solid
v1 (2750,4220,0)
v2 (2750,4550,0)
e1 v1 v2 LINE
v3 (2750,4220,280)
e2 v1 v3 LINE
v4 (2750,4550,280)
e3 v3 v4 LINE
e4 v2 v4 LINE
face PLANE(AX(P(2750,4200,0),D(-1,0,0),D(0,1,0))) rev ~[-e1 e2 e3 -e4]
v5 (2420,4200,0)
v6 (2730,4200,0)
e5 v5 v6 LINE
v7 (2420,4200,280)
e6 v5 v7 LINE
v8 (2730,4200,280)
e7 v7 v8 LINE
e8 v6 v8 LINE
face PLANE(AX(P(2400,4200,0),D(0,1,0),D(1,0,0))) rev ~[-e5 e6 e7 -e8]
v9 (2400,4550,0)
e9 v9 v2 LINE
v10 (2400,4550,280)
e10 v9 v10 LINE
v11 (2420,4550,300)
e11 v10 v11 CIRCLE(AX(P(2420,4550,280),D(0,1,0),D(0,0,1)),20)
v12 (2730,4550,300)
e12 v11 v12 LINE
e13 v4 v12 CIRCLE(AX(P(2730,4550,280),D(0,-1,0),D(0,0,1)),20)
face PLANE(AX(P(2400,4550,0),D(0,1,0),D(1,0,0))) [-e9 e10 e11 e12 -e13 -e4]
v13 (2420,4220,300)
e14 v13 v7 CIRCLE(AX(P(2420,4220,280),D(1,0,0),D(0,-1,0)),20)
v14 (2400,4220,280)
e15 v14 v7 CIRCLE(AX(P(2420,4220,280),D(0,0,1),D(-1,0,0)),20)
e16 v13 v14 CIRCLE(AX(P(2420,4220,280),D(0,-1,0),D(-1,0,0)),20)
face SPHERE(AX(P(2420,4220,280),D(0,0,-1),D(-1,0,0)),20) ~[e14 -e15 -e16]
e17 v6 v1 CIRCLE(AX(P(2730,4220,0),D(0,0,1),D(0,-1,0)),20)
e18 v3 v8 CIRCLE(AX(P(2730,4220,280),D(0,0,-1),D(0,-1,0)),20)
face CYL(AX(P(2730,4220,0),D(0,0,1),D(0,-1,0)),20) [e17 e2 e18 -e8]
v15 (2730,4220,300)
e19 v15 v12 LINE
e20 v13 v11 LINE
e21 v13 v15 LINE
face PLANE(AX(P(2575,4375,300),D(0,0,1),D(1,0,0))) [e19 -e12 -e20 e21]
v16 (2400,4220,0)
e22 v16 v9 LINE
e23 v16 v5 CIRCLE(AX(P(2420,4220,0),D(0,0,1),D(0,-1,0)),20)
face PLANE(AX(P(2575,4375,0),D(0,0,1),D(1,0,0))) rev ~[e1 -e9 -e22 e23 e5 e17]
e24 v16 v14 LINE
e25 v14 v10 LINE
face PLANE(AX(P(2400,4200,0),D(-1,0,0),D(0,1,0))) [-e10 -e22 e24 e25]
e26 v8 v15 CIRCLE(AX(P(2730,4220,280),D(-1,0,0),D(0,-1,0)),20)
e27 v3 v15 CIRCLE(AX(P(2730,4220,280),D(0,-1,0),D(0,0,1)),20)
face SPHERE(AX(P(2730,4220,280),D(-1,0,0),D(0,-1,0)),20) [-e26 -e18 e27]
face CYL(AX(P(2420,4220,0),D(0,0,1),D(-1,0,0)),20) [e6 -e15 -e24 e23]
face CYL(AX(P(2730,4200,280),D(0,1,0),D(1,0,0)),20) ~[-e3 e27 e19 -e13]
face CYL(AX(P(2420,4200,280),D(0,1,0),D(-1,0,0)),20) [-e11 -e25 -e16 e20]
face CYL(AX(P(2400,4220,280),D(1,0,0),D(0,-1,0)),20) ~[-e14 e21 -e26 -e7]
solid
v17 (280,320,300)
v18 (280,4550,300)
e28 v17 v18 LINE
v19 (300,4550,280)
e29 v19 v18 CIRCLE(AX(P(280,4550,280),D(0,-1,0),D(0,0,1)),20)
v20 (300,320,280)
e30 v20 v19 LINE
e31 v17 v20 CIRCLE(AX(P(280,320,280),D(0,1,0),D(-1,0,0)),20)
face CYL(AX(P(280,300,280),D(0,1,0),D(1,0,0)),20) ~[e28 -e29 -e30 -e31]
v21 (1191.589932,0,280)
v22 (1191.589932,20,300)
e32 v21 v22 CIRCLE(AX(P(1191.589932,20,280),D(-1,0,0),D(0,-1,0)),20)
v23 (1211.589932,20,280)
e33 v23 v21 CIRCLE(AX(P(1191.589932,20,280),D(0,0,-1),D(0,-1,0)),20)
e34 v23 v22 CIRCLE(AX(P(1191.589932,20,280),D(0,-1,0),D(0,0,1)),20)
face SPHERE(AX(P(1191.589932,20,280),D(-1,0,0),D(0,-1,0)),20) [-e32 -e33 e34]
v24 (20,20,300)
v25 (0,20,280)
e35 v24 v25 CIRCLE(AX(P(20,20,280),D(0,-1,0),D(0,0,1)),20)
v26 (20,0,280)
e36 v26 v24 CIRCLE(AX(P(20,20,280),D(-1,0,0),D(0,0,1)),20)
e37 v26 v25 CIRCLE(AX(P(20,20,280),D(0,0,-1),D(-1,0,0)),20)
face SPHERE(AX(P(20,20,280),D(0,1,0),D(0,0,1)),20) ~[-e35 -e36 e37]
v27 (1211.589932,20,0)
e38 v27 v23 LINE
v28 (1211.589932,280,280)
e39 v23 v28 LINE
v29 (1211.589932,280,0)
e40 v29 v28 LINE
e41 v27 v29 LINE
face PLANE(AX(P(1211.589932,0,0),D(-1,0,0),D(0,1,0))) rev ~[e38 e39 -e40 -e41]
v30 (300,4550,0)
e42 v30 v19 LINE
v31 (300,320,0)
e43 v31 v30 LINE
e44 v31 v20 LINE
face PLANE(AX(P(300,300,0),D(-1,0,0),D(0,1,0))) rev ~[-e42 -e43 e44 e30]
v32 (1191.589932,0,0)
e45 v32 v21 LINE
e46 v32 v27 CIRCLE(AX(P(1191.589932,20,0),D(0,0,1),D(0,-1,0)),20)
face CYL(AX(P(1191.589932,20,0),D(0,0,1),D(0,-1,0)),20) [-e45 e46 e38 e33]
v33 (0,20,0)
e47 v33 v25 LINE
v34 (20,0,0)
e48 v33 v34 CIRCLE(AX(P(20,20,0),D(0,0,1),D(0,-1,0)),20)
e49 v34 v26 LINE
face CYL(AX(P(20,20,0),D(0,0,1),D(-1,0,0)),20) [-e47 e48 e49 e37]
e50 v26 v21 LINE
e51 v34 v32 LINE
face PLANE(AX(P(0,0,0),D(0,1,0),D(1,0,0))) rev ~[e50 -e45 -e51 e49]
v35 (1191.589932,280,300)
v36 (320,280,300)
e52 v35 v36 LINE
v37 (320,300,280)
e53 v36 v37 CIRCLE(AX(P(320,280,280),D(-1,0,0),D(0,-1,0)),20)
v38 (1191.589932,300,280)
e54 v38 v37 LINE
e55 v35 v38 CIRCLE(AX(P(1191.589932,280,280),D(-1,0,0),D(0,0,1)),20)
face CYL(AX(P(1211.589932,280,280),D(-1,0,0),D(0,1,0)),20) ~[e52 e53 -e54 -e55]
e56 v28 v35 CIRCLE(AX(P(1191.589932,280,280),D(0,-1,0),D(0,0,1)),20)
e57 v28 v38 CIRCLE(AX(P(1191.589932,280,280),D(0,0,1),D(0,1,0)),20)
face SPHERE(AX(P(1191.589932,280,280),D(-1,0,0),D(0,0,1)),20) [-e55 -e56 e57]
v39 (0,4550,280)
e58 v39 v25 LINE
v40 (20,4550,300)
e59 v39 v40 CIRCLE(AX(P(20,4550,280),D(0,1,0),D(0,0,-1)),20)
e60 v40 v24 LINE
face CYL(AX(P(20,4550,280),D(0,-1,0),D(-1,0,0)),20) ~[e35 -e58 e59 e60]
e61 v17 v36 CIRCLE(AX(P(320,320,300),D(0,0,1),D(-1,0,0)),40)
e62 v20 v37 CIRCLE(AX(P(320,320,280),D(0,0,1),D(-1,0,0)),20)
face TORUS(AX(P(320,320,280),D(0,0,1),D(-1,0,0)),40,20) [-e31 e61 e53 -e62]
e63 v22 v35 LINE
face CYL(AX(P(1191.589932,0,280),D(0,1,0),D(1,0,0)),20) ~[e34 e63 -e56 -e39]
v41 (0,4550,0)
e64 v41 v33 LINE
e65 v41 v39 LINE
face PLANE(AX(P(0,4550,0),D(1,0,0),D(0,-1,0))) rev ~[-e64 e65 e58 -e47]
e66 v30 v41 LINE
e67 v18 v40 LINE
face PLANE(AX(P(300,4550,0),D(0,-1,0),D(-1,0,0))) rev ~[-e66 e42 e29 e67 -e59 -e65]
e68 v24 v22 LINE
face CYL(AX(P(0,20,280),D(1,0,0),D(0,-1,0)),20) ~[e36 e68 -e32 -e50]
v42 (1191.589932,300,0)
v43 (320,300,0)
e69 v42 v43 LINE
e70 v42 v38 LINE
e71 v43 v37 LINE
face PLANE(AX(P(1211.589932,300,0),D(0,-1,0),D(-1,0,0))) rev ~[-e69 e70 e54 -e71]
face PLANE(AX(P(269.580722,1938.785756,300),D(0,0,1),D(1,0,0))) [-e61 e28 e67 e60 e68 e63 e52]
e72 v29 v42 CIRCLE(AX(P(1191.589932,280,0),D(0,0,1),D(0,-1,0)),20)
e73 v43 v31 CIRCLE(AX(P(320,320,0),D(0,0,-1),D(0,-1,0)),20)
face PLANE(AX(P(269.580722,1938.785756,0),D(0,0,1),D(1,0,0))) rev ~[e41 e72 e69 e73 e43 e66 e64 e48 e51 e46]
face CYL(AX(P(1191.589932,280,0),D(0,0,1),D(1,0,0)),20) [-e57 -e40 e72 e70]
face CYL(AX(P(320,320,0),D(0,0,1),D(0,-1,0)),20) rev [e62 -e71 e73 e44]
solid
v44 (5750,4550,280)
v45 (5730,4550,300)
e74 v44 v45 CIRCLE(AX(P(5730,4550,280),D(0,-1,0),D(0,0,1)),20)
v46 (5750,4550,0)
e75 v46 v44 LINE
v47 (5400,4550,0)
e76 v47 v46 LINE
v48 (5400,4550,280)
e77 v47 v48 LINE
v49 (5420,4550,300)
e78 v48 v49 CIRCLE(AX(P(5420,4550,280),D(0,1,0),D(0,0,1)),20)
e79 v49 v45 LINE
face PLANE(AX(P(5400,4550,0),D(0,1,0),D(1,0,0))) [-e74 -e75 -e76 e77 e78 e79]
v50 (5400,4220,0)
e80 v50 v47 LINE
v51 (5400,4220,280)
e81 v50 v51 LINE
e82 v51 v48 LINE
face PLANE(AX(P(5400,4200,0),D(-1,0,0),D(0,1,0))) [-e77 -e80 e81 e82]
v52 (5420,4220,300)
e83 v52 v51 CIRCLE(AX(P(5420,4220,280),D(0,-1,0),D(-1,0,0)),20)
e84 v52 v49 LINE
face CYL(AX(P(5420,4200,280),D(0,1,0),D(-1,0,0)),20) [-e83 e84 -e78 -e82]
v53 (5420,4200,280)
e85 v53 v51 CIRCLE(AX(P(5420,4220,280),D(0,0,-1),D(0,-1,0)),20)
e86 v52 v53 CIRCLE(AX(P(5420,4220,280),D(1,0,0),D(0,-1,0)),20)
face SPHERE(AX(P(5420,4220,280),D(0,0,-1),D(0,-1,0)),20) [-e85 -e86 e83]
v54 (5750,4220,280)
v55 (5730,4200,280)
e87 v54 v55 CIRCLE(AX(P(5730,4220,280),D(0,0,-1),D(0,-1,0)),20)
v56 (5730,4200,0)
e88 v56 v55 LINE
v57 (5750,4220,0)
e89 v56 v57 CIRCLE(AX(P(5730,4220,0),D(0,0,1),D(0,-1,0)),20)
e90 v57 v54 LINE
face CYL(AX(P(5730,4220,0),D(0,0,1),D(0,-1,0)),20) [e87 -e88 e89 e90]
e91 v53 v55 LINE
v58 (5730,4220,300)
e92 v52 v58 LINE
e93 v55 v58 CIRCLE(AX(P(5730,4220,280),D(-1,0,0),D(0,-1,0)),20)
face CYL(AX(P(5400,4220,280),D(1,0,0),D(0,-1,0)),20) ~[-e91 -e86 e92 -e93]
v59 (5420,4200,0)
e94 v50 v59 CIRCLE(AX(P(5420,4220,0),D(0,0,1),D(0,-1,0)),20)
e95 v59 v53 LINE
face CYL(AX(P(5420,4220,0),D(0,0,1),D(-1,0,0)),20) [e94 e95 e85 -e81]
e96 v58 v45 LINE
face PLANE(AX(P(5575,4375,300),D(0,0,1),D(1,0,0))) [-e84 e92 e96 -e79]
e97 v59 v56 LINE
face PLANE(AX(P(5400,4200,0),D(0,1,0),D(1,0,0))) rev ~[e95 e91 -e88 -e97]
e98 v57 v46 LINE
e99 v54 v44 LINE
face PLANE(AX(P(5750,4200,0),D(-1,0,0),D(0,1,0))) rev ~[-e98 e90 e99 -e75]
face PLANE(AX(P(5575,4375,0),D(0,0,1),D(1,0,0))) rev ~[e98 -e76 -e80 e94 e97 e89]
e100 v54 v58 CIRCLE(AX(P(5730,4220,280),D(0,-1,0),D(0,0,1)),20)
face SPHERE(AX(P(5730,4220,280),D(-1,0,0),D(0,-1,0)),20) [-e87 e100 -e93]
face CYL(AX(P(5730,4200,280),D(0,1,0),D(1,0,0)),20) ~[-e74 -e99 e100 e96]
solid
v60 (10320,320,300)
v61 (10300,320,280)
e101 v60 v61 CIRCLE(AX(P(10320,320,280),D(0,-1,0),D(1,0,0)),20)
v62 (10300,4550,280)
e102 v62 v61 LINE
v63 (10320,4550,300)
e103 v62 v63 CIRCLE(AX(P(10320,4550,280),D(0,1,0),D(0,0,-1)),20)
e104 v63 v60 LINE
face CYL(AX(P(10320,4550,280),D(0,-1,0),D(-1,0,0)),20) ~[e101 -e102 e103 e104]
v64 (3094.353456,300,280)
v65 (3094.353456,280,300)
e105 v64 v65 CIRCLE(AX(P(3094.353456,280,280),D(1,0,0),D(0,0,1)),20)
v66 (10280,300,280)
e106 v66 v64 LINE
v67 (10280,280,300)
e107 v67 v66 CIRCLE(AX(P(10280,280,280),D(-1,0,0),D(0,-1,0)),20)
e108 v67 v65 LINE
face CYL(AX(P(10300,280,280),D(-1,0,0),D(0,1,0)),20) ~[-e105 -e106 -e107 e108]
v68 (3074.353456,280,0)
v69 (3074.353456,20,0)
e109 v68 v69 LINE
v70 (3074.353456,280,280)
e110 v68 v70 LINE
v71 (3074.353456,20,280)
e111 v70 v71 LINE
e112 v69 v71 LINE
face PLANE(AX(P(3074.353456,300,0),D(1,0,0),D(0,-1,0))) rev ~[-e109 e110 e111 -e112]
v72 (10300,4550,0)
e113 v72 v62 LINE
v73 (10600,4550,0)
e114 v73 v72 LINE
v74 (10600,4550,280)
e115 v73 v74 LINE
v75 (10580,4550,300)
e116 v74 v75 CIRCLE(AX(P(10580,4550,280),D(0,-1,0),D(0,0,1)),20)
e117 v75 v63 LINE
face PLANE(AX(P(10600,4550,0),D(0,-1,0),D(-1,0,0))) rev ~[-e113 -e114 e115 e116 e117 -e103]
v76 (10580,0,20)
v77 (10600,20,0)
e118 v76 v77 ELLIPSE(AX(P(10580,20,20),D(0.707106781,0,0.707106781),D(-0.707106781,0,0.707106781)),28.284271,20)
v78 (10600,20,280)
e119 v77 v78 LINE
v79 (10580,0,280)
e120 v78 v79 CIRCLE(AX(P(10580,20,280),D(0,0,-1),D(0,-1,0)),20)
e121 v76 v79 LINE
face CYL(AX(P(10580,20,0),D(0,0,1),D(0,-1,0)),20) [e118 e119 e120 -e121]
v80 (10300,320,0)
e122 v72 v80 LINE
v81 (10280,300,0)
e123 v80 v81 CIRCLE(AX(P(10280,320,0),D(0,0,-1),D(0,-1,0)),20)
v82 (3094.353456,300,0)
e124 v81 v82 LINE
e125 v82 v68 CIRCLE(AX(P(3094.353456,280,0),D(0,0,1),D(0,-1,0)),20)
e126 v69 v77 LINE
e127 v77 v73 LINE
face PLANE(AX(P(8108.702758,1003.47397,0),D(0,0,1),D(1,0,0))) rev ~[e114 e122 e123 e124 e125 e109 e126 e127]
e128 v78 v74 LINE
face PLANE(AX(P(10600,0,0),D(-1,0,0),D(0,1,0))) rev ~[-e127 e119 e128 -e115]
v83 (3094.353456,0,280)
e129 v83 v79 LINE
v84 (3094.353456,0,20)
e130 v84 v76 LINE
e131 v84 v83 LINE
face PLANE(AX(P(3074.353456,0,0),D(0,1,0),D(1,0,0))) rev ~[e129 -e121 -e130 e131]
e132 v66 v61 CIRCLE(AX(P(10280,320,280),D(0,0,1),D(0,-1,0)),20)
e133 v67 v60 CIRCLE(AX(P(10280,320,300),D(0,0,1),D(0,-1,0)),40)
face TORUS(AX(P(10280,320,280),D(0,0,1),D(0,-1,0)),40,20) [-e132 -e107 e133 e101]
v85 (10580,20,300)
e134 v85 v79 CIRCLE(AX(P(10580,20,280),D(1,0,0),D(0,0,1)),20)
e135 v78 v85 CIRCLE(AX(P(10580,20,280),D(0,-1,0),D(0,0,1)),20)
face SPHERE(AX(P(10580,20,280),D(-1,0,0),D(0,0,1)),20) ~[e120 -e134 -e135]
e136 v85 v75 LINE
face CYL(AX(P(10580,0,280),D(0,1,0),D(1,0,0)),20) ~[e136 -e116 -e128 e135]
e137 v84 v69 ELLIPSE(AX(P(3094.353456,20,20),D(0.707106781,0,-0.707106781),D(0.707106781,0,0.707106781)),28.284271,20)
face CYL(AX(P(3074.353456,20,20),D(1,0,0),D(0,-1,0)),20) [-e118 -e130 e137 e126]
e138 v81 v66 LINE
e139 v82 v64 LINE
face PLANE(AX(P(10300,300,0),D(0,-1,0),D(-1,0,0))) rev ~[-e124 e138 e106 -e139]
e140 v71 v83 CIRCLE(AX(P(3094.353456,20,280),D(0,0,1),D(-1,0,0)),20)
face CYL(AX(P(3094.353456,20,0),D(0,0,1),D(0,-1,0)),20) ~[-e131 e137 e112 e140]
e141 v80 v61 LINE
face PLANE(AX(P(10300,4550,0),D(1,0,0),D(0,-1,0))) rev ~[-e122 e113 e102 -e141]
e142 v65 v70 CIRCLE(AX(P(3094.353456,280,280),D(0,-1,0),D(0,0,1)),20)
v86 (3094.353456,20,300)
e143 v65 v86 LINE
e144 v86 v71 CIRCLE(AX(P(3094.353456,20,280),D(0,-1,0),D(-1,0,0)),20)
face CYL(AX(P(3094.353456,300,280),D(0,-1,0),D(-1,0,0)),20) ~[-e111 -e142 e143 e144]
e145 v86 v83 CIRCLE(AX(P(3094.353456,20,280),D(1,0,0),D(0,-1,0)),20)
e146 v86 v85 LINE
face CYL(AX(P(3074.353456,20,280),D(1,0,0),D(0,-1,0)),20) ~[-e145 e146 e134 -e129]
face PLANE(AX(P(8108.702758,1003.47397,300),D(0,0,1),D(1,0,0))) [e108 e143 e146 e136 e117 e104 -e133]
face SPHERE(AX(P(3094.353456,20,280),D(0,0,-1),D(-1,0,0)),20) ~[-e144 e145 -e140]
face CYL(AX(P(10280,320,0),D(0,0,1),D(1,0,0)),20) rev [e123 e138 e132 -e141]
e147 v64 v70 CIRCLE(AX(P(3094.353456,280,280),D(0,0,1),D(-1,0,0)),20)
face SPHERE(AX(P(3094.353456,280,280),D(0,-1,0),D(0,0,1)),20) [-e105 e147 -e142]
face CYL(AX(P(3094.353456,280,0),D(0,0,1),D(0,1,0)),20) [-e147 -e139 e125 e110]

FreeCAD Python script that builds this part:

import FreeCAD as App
import Part
import Sketcher

V = App.Vector
Q = App.Units.Quantity


def edges_at(feature, points):
    """Names of the edges that pass closest to the given points."""
    edges = feature.Shape.Edges
    near = lambda p: min(range(len(edges)), key=lambda i: edges[i].distToShape(Part.Vertex(*p))[0])
    return sorted({f"Edge{near(p) + 1}" for p in points})

doc = App.newDocument("Part")
body = doc.addObject("PartDesign::Body", "Body")
body.AllowCompound = True

sketch1 = doc.addObject("Sketcher::SketchObject", "Sketch")
body.addObject(sketch1)
sketch1.AttachmentSupport = (doc.XY_Plane, [""])
sketch1.MapMode = "FlatFace"
sketch1.addGeometry([
    Part.LineSegment(V(0, 4550, 0), V(0, 0, 0)),
    Part.LineSegment(V(0, 0, 0), V(1212, 0, 0)),
    Part.LineSegment(V(1212, 0, 0), V(1212, 300, 0)),
    Part.LineSegment(V(1212, 300, 0), V(300, 300, 0)),
    Part.LineSegment(V(300, 300, 0), V(300, 4550, 0)),
    Part.LineSegment(V(300, 4550, 0), V(0, 4550, 0)),
    Part.LineSegment(V(3074, 0, 0), V(10600, 0, 0)),
    Part.LineSegment(V(10600, 0, 0), V(10600, 4550, 0)),
    Part.LineSegment(V(10600, 4550, 0), V(10300, 4550, 0)),
    Part.LineSegment(V(10300, 4550, 0), V(10300, 300, 0)),
    Part.LineSegment(V(10300, 300, 0), V(3074, 300, 0)),
    Part.LineSegment(V(3074, 300, 0), V(3074, 0, 0)),
    Part.LineSegment(V(2400, 4550, 0), V(2400, 4200, 0)),
    Part.LineSegment(V(2400, 4200, 0), V(2750, 4200, 0)),
    Part.LineSegment(V(2750, 4200, 0), V(2750, 4550, 0)),
    Part.LineSegment(V(2750, 4550, 0), V(2400, 4550, 0)),
    Part.LineSegment(V(5400, 4550, 0), V(5400, 4200, 0)),
    Part.LineSegment(V(5400, 4200, 0), V(5750, 4200, 0)),
    Part.LineSegment(V(5750, 4200, 0), V(5750, 4550, 0)),
    Part.LineSegment(V(5750, 4550, 0), V(5400, 4550, 0)),
], False)
sketch1.addConstraint([
    Sketcher.Constraint("Coincident", 0, 2, 1, 1),
    Sketcher.Constraint("Coincident", 1, 2, 2, 1),
    Sketcher.Constraint("Coincident", 2, 2, 3, 1),
    Sketcher.Constraint("Coincident", 3, 2, 4, 1),
    Sketcher.Constraint("Coincident", 4, 2, 5, 1),
    Sketcher.Constraint("Coincident", 5, 2, 0, 1),
    Sketcher.Constraint("Coincident", 6, 2, 7, 1),
    Sketcher.Constraint("Coincident", 7, 2, 8, 1),
    Sketcher.Constraint("Coincident", 8, 2, 9, 1),
    Sketcher.Constraint("Coincident", 9, 2, 10, 1),
    Sketcher.Constraint("Coincident", 10, 2, 11, 1),
    Sketcher.Constraint("Coincident", 11, 2, 6, 1),
    Sketcher.Constraint("Coincident", 12, 2, 13, 1),
    Sketcher.Constraint("Coincident", 13, 2, 14, 1),
    Sketcher.Constraint("Coincident", 14, 2, 15, 1),
    Sketcher.Constraint("Coincident", 15, 2, 12, 1),
    Sketcher.Constraint("Coincident", 16, 2, 17, 1),
    Sketcher.Constraint("Coincident", 17, 2, 18, 1),
    Sketcher.Constraint("Coincident", 18, 2, 19, 1),
    Sketcher.Constraint("Coincident", 19, 2, 16, 1),
    Sketcher.Constraint("Vertical", 0),
    Sketcher.Constraint("Horizontal", 1),
    Sketcher.Constraint("Vertical", 2),
    Sketcher.Constraint("Horizontal", 3),
    Sketcher.Constraint("Vertical", 4),
    Sketcher.Constraint("Horizontal", 5),
    Sketcher.Constraint("Horizontal", 6),
    Sketcher.Constraint("Vertical", 7),
    Sketcher.Constraint("Horizontal", 8),
    Sketcher.Constraint("Vertical", 9),
    Sketcher.Constraint("Horizontal", 10),
    Sketcher.Constraint("Vertical", 11),
    Sketcher.Constraint("Vertical", 12),
    Sketcher.Constraint("Horizontal", 13),
    Sketcher.Constraint("Vertical", 14),
    Sketcher.Constraint("Horizontal", 15),
    Sketcher.Constraint("Vertical", 16),
    Sketcher.Constraint("Horizontal", 17),
    Sketcher.Constraint("Vertical", 18),
    Sketcher.Constraint("Horizontal", 19),
    Sketcher.Constraint("Coincident", 0, 2, -1, 1),
    Sketcher.Constraint("PointOnObject", 6, 2, -1),
    Sketcher.Constraint("Horizontal", 5, 2, 7, 2),
    Sketcher.Constraint("Horizontal", 3, 2, 9, 2),
    Sketcher.Constraint("Horizontal", 8, 2, 14, 2),
    Sketcher.Constraint("Horizontal", 13, 2, 16, 2),
    Sketcher.Constraint("Horizontal", 15, 2, 18, 2),
    Sketcher.Constraint("Equal", 5, 8),
    Sketcher.Constraint("Equal", 15, 17),
    Sketcher.Constraint("Equal", 8, 2),
    Sketcher.Constraint("Equal", 19, 12),
    Sketcher.Constraint("DistanceX", 5, 2, 5, 1, Q("300 mm")),
    Sketcher.Constraint("DistanceX", 13, 1, 13, 2, Q("350 mm")),
    Sketcher.Constraint("DistanceY", 0, 2, 0, 1, Q("4550 mm")),
    Sketcher.Constraint("DistanceX", -1, 1, 6, 2, Q("10600 mm")),
    Sketcher.Constraint("DistanceX", -1, 1, 12, 2, Q("2400 mm")),
    Sketcher.Constraint("DistanceX", -1, 1, 16, 2, Q("5400 mm")),
    Sketcher.Constraint("DistanceX", 1, 1, 1, 2, Q("1211.589932 mm")),
    Sketcher.Constraint("DistanceX", 6, 1, 6, 2, Q("7525.646544 mm")),
])
pad1 = doc.addObject("PartDesign::Pad", "Pad")
body.addObject(pad1)
pad1.Profile = sketch1
pad1.Length = 300
doc.recompute()

fillet = doc.addObject("PartDesign::Fillet", "Fillet")
body.addObject(fillet)
fillet.Base = (pad1, edges_at(pad1, [
    (300, 2425, 300),
    (0, 2275, 300),
    (755.795, 300, 300),
    (605.795, 0, 300),
    (1211.59, 0, 150),
    (1211.59, 150, 300),
    (1211.59, 300, 150),
    (3074.353, 0, 150),
    (3074.353, 150, 300),
    (6687.177, 300, 300),
    (6837.177, 0, 300),
    (3074.353, 300, 150),
    (10300, 2425, 300),
    (10600, 2275, 300),
    (10600, 0, 150),
    (6837.177, 0, 0),
    (0, 0, 150),
    (300, 300, 150),
    (10300, 300, 150),
    (2400, 4200, 150),
    (2400, 4375, 300),
    (2575, 4200, 300),
    (2750, 4200, 150),
    (2750, 4375, 300),
    (5400, 4200, 150),
    (5575, 4200, 300),
    (5400, 4375, 300),
    (5750, 4200, 150),
    (5750, 4375, 300),
]))
fillet.Radius = 20

doc.recompute()
